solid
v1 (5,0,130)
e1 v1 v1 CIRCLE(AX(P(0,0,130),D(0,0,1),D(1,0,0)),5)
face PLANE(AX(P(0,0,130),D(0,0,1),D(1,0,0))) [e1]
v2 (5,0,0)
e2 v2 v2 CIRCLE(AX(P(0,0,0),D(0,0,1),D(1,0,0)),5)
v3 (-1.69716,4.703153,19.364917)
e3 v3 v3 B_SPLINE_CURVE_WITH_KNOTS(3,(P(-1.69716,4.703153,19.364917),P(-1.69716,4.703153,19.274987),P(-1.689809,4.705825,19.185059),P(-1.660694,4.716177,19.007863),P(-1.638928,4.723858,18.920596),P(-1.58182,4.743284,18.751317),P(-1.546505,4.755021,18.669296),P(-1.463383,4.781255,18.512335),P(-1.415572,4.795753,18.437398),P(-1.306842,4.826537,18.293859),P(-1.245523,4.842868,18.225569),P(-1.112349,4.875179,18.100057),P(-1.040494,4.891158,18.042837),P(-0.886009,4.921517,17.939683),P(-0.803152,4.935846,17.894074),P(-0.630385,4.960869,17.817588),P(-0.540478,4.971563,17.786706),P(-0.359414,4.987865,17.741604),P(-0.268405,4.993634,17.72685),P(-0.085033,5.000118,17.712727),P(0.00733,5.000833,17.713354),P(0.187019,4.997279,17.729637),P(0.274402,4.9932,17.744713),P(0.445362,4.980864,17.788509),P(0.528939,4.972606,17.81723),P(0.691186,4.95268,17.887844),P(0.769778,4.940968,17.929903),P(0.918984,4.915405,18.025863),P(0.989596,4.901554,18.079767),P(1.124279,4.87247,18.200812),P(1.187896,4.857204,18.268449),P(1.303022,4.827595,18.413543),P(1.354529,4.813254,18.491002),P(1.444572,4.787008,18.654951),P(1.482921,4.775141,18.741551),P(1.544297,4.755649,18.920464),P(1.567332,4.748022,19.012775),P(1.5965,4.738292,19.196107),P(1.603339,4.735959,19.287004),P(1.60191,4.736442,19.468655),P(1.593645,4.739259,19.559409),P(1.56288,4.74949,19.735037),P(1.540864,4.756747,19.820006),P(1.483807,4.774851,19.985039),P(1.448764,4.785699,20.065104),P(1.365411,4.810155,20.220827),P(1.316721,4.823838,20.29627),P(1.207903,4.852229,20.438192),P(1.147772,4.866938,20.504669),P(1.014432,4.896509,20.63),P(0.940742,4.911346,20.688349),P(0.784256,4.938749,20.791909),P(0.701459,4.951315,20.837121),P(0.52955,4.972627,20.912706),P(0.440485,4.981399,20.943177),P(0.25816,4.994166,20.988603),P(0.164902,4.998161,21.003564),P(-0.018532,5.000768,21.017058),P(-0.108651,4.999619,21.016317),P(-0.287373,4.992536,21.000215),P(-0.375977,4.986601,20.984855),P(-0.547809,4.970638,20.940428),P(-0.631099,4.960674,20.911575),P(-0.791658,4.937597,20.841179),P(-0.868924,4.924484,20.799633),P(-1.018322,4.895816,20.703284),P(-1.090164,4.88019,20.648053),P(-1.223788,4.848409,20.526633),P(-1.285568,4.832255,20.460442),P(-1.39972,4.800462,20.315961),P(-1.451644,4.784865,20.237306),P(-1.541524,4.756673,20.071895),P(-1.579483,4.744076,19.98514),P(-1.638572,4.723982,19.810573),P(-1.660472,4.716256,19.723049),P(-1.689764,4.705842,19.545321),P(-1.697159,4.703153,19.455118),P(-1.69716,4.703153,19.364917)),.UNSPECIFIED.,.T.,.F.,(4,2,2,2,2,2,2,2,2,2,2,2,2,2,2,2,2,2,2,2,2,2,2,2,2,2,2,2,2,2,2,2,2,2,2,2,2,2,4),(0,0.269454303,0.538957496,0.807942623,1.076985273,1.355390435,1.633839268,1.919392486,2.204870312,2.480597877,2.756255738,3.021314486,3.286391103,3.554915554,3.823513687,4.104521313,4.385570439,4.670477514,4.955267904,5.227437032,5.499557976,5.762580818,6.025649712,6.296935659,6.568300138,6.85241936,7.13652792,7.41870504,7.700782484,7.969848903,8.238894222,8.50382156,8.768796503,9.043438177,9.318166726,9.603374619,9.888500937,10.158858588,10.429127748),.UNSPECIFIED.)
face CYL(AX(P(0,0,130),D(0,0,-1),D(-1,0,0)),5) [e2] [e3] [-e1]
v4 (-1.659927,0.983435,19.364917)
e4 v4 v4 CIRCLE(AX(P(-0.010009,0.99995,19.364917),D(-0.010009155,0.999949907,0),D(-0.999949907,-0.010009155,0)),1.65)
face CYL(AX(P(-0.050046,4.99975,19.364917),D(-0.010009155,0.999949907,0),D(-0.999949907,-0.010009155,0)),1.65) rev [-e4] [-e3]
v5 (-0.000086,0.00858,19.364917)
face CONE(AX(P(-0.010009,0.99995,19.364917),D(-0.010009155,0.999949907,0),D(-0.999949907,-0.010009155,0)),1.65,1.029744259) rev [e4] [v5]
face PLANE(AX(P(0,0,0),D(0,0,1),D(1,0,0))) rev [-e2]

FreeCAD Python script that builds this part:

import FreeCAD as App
import Part
import Sketcher
Q = App.Units.Quantity

doc = App.newDocument("Part")
body = doc.addObject("PartDesign::Body", "Body")

# Sketch on XY plane
sketch1 = body.newObject("Sketcher::SketchObject", "Sketch")
sketch1.AttachmentSupport = (doc.getObject("XY_Plane"), [""])
sketch1.MapMode = "FlatFace"
sketch1.addGeometry(Part.Circle(App.Vector(0, 0, 0), App.Vector(0, 0, 1), 5), False)
sketch1.addConstraint(Sketcher.Constraint("Coincident", 0, 3, -1, 1))
sketch1.addConstraint(Sketcher.Constraint("Diameter", 0, Q("10 mm")))
pad1 = body.newObject("PartDesign::Pad", "Pad")
pad1.Profile = sketch1
pad1.Length = 130

# Sketch on an angled plane
sketch2 = body.newObject("Sketcher::SketchObject", "Sketch001")
sketch2.Placement = App.Placement(App.Vector(-0.050046, 4.99975, 0), App.Rotation(App.Vector(0.999949907, 0.010009155, 0), App.Vector(0, 0, -1), App.Vector(-0.010009155, 0.999949907, 0), "ZXY"))
sketch2.addGeometry(Part.Circle(App.Vector(0, -19.4, 0), App.Vector(0, 0, 1), 1.6), False)
sketch2.addConstraint(Sketcher.Constraint("PointOnObject", 0, 3, -2))
sketch2.addConstraint(Sketcher.Constraint("Diameter", 0, Q("3.3 mm")))
sketch2.addConstraint(Sketcher.Constraint("DistanceY", 0, 3, -1, 1, Q("19.364917 mm")))
doc.recompute()
hole = body.newObject("PartDesign::Hole", "Hole")
hole.Profile = sketch2
hole.ThreadType = "None"
hole.Diameter = 3.3
hole.DepthType = "Dimension"
hole.Depth = 4
hole.DrillPoint = "Angled"
hole.DrillPointAngle = 118

doc.recompute()
